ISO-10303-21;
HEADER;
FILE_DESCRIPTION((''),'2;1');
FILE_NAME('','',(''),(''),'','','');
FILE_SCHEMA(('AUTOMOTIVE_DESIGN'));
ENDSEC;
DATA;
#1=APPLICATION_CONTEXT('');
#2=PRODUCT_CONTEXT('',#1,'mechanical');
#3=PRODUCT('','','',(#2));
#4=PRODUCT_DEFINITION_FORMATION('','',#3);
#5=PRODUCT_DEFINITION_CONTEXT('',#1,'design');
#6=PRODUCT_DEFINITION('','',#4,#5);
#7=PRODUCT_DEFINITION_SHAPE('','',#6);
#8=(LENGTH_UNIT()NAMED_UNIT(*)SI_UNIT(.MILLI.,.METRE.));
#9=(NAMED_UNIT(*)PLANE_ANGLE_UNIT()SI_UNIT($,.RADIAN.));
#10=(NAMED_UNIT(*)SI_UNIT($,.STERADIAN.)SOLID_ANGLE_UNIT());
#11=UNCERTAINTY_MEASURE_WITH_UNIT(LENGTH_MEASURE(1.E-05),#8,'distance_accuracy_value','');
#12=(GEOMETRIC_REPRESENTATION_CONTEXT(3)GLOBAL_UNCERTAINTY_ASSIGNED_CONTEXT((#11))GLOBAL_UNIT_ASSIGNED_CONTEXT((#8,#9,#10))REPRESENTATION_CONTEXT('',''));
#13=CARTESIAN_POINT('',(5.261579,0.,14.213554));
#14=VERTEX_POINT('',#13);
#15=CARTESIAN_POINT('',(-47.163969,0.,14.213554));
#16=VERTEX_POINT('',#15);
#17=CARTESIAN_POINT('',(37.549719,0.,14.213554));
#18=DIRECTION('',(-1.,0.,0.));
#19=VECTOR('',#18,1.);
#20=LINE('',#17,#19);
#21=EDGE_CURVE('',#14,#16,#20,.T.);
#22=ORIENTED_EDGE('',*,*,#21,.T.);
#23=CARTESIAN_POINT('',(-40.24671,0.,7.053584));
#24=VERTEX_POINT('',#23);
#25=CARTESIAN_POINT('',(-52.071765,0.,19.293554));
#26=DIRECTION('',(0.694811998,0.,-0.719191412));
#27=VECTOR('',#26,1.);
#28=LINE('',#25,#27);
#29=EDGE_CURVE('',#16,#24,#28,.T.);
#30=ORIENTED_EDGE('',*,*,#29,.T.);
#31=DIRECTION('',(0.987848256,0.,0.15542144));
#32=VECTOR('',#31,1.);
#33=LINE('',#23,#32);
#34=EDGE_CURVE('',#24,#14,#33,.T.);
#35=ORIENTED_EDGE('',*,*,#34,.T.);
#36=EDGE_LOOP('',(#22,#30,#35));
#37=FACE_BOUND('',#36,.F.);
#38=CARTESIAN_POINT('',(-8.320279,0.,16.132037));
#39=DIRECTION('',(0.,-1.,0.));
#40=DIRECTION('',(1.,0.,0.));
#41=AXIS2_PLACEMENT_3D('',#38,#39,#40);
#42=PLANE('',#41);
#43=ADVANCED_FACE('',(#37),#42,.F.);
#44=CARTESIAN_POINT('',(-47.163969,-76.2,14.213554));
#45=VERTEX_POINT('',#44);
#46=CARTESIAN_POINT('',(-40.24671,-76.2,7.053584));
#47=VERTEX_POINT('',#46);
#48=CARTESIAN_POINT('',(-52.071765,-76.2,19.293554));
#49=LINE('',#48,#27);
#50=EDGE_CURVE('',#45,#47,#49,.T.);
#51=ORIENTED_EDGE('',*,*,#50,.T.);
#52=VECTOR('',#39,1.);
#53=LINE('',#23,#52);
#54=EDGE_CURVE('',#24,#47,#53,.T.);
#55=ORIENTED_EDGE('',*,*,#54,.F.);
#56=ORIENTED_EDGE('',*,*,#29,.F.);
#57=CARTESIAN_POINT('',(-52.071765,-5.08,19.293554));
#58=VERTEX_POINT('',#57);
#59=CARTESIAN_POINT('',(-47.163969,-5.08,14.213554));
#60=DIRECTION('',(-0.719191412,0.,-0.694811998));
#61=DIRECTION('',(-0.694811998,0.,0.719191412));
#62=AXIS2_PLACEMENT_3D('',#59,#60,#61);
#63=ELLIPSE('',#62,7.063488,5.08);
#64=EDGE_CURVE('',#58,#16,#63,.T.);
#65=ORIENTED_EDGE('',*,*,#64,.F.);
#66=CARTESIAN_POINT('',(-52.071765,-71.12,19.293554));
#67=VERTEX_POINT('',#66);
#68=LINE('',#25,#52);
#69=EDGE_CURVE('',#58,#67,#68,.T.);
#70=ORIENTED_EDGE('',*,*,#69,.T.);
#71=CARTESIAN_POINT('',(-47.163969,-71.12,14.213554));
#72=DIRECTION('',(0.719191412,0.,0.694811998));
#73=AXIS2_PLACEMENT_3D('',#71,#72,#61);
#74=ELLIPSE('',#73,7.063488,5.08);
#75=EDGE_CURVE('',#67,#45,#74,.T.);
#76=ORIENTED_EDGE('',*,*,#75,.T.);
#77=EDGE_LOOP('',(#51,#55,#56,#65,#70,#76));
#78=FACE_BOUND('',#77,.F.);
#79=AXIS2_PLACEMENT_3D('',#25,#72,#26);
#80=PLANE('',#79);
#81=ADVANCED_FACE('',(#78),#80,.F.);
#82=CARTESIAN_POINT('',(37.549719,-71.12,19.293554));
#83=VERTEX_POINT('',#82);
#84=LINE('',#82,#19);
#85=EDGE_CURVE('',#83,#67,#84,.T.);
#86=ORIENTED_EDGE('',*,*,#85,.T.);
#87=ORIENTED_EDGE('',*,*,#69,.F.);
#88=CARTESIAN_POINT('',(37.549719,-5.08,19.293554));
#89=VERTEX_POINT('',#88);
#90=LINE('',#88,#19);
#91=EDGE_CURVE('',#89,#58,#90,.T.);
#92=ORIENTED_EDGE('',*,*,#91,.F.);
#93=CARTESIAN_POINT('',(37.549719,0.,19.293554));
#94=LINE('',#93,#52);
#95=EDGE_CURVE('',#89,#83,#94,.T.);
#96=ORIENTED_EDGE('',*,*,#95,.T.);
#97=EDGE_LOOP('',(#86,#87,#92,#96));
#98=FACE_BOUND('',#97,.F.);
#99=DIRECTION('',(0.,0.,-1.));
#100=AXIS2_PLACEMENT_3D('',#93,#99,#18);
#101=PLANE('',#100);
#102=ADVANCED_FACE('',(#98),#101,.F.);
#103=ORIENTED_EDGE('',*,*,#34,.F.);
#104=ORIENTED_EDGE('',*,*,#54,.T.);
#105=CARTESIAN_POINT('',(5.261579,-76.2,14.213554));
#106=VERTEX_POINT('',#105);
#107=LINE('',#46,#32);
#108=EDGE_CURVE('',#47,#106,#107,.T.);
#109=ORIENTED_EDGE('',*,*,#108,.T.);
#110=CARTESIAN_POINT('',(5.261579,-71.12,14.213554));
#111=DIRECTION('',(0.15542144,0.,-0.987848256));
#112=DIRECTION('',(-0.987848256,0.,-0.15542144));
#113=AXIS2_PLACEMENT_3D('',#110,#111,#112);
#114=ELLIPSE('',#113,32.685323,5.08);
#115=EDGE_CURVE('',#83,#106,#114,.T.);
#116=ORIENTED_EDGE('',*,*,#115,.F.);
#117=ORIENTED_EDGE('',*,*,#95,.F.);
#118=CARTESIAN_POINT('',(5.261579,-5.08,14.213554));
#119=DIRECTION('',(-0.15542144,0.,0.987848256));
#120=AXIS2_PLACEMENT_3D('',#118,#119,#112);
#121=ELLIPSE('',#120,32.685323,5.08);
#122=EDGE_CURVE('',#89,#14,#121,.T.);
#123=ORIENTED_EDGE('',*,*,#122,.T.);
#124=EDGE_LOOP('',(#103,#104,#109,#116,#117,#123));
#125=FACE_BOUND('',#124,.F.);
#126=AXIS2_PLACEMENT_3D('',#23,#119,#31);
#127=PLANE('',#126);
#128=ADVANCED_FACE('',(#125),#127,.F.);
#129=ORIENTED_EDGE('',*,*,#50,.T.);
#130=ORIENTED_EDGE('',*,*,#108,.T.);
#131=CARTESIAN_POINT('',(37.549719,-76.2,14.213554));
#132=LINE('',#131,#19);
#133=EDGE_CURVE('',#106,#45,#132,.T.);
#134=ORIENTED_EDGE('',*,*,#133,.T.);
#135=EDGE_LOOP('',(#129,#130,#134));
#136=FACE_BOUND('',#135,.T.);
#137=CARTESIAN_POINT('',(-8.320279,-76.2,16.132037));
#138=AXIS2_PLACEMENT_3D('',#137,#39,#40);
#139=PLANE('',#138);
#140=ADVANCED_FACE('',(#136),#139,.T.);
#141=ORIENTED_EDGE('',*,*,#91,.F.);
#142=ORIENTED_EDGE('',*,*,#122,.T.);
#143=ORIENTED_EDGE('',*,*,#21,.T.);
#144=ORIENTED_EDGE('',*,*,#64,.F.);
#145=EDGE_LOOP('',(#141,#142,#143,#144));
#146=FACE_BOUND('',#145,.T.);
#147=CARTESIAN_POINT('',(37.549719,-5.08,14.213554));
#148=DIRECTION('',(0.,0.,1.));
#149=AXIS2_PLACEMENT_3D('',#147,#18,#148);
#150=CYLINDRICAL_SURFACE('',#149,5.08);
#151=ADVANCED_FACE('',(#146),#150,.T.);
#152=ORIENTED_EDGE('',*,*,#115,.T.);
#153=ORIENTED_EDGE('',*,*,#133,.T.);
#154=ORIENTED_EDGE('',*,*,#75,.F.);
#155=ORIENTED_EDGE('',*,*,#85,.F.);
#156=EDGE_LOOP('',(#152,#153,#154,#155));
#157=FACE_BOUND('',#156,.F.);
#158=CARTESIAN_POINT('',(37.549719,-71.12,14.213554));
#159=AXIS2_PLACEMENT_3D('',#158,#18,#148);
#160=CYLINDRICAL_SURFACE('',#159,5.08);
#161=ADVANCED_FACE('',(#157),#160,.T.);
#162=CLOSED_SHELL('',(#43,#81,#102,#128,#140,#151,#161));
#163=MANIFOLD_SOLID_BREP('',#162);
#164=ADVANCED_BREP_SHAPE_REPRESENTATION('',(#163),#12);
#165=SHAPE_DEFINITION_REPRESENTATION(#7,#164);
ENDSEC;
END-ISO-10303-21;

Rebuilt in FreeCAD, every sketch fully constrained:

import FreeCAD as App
import Part
import Sketcher
from FreeCAD import Vector
Q = App.Units.Quantity


def edges_at(feature, points):
    """Names of the edges that pass closest to the given points."""
    edges = feature.Shape.Edges
    near = lambda p: min(range(len(edges)), key=lambda i: edges[i].distToShape(Part.Vertex(*p))[0])
    return sorted({f"Edge{near(p) + 1}" for p in points})

doc = App.newDocument("Part")
params = doc.addObject("Spreadsheet::Sheet", "Params")
for row, (alias, value) in enumerate([
    ("pad1_length", "3 in"),
    ("fillet_radius", "0.2 in"),
    ("fillet2_radius", "0.2 in"),
], start=1):
    params.set(f"A{row}", alias)
    params.set(f"B{row}", "=" + value)
    params.setAlias(f"B{row}", alias)

body = doc.addObject("PartDesign::Body", "Body")

# Sketch on XZ plane
sketch1 = body.newObject("Sketcher::SketchObject", "Sketch")
sketch1.AttachmentSupport = (doc.getObject("XZ_Plane"), [""])
sketch1.MapMode = "FlatFace"
sketch1.addGeometry(Part.LineSegment(Vector(-40, 7, 0), Vector(38, 19, 0)), False)
sketch1.addGeometry(Part.LineSegment(Vector(38, 19, 0), Vector(-52, 19, 0)), False)
sketch1.addGeometry(Part.LineSegment(Vector(-52, 19, 0), Vector(-40, 7, 0)), False)
sketch1.addConstraint(Sketcher.Constraint("Coincident", 0, 2, 1, 1))
sketch1.addConstraint(Sketcher.Constraint("Coincident", 1, 2, 2, 1))
sketch1.addConstraint(Sketcher.Constraint("Coincident", 2, 2, 0, 1))
sketch1.addConstraint(Sketcher.Constraint("Horizontal", 1))
sketch1.addConstraint(Sketcher.Constraint("DistanceY", -1, 1, 2, 2, Q("0.2777002 in")))
sketch1.addConstraint(Sketcher.Constraint("Distance", 0, Q("78.75342 mm")))
sketch1.addConstraint(Sketcher.Constraint("Distance", 2, Q("17.019071 mm")))
sketch1.addConstraint(Sketcher.Constraint("DistanceX", 1, 2, 1, 1, Q("89.621484 mm")))
sketch1.addConstraint(Sketcher.Constraint("DistanceX", -1, 1, 0, 2, Q("37.549719 mm")))
pad1 = body.newObject("PartDesign::Pad", "Pad")
pad1.Profile = sketch1
pad1.setExpression("Length", "Params.pad1_length")
doc.recompute()

fillet = body.newObject("PartDesign::Fillet", "Fillet")
fillet.Base = (pad1, edges_at(pad1, [(-7.261, -76.2, 19.294)]))
fillet.setExpression("Radius", "Params.fillet_radius")
doc.recompute()

fillet2 = body.newObject("PartDesign::Fillet", "Fillet001")
fillet2.Base = (fillet, edges_at(fillet, [(-7.261, 0, 19.294)]))
fillet2.setExpression("Radius", "Params.fillet2_radius")

doc.recompute()
